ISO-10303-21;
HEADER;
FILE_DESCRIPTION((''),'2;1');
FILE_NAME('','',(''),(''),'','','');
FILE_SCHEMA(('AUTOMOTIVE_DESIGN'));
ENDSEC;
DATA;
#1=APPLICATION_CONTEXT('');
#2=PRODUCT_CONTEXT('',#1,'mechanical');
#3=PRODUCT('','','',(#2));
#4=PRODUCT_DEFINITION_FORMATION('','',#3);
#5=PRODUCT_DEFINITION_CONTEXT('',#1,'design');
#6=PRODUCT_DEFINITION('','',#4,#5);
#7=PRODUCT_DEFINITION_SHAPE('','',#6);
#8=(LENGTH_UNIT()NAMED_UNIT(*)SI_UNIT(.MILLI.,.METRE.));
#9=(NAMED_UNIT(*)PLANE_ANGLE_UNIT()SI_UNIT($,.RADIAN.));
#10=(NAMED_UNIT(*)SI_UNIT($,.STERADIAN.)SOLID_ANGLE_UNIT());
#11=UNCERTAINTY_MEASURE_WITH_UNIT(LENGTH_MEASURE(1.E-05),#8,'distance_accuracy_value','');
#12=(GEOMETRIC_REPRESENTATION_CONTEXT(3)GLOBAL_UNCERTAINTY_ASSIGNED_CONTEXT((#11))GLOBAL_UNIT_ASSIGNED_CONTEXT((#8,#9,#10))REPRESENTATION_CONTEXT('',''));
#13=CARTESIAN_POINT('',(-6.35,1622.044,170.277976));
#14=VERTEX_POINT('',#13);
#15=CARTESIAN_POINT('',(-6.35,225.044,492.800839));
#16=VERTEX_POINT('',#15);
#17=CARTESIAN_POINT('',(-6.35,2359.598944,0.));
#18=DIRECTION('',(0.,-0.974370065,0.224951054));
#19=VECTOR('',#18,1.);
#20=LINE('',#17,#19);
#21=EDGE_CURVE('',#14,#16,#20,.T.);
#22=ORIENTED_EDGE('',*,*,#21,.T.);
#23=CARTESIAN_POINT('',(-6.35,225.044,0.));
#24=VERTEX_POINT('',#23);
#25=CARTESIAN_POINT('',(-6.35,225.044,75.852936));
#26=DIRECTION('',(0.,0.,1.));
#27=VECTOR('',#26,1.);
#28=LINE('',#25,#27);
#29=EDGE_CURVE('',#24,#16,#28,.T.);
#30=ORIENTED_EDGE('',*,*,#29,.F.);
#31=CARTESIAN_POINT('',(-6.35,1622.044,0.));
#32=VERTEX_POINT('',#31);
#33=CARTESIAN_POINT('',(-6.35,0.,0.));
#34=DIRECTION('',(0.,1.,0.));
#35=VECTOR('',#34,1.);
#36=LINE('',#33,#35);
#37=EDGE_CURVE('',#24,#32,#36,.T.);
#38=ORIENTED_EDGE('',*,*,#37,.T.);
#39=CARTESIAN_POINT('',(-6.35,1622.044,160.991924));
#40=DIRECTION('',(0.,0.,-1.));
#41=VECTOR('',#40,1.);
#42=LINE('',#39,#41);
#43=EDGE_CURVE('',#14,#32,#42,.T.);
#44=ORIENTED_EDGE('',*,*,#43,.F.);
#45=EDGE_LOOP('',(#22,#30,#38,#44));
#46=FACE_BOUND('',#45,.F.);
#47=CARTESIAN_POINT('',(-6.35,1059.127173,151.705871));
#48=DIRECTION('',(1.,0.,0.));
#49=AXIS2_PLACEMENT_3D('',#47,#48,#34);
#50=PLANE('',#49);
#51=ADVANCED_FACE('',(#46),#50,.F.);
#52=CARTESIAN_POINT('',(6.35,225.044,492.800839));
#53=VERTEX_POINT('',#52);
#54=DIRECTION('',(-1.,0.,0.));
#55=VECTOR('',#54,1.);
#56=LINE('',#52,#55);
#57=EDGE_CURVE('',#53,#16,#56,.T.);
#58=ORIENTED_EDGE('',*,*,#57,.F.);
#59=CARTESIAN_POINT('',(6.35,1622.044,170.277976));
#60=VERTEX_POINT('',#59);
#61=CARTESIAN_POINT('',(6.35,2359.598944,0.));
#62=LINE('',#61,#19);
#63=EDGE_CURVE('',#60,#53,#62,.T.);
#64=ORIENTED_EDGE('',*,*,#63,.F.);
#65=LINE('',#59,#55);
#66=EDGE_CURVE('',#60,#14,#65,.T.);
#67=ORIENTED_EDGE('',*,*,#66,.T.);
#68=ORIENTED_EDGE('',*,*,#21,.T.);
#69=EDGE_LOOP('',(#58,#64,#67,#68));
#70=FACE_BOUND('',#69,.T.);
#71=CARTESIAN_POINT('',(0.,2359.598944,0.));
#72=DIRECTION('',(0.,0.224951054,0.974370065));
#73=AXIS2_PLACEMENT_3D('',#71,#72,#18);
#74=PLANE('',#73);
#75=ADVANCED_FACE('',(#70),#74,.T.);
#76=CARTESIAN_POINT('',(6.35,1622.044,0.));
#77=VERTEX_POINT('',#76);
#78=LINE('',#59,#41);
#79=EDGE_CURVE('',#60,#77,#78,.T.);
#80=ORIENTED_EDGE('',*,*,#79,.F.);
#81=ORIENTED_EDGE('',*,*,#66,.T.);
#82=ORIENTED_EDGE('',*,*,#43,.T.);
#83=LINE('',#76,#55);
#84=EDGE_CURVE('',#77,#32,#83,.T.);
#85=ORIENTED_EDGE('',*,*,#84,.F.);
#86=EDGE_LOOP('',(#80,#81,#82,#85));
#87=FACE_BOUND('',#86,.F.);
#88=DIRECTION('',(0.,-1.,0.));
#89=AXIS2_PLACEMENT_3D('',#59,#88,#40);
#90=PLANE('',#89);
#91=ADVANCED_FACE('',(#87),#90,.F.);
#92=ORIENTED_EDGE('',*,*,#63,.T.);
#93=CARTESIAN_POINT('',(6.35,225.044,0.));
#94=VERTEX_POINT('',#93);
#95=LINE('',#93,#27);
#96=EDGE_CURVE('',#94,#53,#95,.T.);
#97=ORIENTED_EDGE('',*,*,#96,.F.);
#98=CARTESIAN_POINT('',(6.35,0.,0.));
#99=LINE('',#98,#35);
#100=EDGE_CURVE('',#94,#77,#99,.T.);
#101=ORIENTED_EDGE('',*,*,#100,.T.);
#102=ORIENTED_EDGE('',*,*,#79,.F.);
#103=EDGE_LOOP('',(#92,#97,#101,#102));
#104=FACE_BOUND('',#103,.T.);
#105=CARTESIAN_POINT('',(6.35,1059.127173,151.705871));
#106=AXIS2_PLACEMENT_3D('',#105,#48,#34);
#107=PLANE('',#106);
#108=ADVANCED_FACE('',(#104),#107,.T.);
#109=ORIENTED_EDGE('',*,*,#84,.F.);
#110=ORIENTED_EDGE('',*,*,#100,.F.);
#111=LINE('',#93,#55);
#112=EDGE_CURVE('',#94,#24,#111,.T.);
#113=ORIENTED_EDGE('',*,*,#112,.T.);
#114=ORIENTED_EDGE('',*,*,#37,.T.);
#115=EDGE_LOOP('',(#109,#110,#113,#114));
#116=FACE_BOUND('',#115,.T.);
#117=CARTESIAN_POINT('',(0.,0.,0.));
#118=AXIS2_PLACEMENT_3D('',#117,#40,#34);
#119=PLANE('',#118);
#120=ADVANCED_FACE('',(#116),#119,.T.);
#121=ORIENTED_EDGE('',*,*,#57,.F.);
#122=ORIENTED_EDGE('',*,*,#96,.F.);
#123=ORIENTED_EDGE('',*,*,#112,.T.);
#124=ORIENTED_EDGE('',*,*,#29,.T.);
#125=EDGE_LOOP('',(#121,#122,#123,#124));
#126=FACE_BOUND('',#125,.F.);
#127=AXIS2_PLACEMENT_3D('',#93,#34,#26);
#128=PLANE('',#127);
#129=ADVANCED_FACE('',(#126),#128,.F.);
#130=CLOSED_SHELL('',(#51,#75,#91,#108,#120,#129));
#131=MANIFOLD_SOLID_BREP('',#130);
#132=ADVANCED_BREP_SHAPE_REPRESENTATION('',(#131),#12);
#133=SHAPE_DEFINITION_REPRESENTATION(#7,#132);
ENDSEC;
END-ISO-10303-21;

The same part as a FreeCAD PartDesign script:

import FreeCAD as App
import Part
import Sketcher

V = App.Vector
Q = App.Units.Quantity

doc = App.newDocument("Part")
body = doc.addObject("PartDesign::Body", "Body")

# Sketch on YZ plane
sketch1 = body.newObject("Sketcher::SketchObject", "Sketch")
sketch1.AttachmentSupport = (doc.getObject("YZ_Plane"), [""])
sketch1.MapMode = "FlatFace"
sketch1.addGeometry([
    Part.LineSegment(V(0, 544.75634, 0), V(0, 0, 0)),
    Part.LineSegment(V(0, 0, 0), V(2359.598944, 0, 0)),
    Part.LineSegment(V(2359.598944, 0, 0), V(0, 544.75634, 0)),
], False)
sketch1.addConstraint([
    Sketcher.Constraint("Coincident", 0, 2, 1, 1),
    Sketcher.Constraint("Coincident", 1, 2, 2, 1),
    Sketcher.Constraint("Coincident", 2, 2, 0, 1),
    Sketcher.Constraint("Vertical", 0),
    Sketcher.Constraint("Horizontal", 1),
    Sketcher.Constraint("Coincident", 0, 2, -1, 1),
    Sketcher.Constraint("Angle", 2, Q("167 deg")),
    Sketcher.Constraint("DistanceY", 0, 2, 0, 1, Q("21.4471 in")),
])
pad1 = body.newObject("PartDesign::Pad", "Pad")
pad1.Profile = sketch1
pad1.Length = Q("0.5 in")
pad1.Midplane = True

# Sketch on YZ plane
sketch2 = body.newObject("Sketcher::SketchObject", "Sketch001")
sketch2.AttachmentSupport = (doc.getObject("YZ_Plane"), [""])
sketch2.MapMode = "FlatFace"
sketch2.AttachmentOffset = App.Placement(V(0, 0, 0.25 * 25.4), App.Rotation())
sketch2.addGeometry([
    Part.LineSegment(V(0, 0, 0), V(225.044, 0, 0)),  # 0
    Part.LineSegment(V(225.044, 0, 0), V(225.044, 492.800839, 0)),  # 1
    Part.LineSegment(V(225.044, 492.800839, 0), V(0, 544.75634, 0)),  # 2
    Part.LineSegment(V(0, 544.75634, 0), V(0, 0, 0)),  # 3
    Part.LineSegment(V(1622.044, 170.277976, 0), V(1622.044, 0, 0)),  # 4
    Part.LineSegment(V(1622.044, 0, 0), V(2359.598944, 0, 0)),  # 5
    Part.LineSegment(V(2359.598944, 0, 0), V(1622.044, 170.277976, 0)),  # 6
], False)
sketch2.addConstraint([
    Sketcher.Constraint("Coincident", 0, 2, 1, 1),
    Sketcher.Constraint("Coincident", 1, 2, 2, 1),
    Sketcher.Constraint("Coincident", 2, 2, 3, 1),
    Sketcher.Constraint("Coincident", 3, 2, 0, 1),
    Sketcher.Constraint("Coincident", 4, 2, 5, 1),
    Sketcher.Constraint("Coincident", 5, 2, 6, 1),
    Sketcher.Constraint("Coincident", 6, 2, 4, 1),
    Sketcher.Constraint("Horizontal", 0),
    Sketcher.Constraint("Vertical", 1),
    Sketcher.Constraint("Vertical", 3),
    Sketcher.Constraint("Vertical", 4),
    Sketcher.Constraint("Horizontal", 5),
    Sketcher.Constraint("Coincident", 3, 2, -1, 1),
    Sketcher.Constraint("PointOnObject", 4, 2, -1),
    Sketcher.Constraint("Parallel", 2, 6),
    Sketcher.Constraint("Angle", 2, Q("167 deg")),
    Sketcher.Constraint("DistanceX", 0, 2, 4, 2, Q("55 in")),
    Sketcher.Constraint("DistanceX", 0, 1, 0, 2, Q("8.86 in")),
    Sketcher.Constraint("DistanceY", 3, 2, 3, 1, Q("21.4471 in")),
    Sketcher.Constraint("Distance", 6, 756.955669),
])
pocket1 = body.newObject("PartDesign::Pocket", "Pocket")
pocket1.Profile = sketch2
pocket1.Type = "ThroughAll"

doc.recompute()
